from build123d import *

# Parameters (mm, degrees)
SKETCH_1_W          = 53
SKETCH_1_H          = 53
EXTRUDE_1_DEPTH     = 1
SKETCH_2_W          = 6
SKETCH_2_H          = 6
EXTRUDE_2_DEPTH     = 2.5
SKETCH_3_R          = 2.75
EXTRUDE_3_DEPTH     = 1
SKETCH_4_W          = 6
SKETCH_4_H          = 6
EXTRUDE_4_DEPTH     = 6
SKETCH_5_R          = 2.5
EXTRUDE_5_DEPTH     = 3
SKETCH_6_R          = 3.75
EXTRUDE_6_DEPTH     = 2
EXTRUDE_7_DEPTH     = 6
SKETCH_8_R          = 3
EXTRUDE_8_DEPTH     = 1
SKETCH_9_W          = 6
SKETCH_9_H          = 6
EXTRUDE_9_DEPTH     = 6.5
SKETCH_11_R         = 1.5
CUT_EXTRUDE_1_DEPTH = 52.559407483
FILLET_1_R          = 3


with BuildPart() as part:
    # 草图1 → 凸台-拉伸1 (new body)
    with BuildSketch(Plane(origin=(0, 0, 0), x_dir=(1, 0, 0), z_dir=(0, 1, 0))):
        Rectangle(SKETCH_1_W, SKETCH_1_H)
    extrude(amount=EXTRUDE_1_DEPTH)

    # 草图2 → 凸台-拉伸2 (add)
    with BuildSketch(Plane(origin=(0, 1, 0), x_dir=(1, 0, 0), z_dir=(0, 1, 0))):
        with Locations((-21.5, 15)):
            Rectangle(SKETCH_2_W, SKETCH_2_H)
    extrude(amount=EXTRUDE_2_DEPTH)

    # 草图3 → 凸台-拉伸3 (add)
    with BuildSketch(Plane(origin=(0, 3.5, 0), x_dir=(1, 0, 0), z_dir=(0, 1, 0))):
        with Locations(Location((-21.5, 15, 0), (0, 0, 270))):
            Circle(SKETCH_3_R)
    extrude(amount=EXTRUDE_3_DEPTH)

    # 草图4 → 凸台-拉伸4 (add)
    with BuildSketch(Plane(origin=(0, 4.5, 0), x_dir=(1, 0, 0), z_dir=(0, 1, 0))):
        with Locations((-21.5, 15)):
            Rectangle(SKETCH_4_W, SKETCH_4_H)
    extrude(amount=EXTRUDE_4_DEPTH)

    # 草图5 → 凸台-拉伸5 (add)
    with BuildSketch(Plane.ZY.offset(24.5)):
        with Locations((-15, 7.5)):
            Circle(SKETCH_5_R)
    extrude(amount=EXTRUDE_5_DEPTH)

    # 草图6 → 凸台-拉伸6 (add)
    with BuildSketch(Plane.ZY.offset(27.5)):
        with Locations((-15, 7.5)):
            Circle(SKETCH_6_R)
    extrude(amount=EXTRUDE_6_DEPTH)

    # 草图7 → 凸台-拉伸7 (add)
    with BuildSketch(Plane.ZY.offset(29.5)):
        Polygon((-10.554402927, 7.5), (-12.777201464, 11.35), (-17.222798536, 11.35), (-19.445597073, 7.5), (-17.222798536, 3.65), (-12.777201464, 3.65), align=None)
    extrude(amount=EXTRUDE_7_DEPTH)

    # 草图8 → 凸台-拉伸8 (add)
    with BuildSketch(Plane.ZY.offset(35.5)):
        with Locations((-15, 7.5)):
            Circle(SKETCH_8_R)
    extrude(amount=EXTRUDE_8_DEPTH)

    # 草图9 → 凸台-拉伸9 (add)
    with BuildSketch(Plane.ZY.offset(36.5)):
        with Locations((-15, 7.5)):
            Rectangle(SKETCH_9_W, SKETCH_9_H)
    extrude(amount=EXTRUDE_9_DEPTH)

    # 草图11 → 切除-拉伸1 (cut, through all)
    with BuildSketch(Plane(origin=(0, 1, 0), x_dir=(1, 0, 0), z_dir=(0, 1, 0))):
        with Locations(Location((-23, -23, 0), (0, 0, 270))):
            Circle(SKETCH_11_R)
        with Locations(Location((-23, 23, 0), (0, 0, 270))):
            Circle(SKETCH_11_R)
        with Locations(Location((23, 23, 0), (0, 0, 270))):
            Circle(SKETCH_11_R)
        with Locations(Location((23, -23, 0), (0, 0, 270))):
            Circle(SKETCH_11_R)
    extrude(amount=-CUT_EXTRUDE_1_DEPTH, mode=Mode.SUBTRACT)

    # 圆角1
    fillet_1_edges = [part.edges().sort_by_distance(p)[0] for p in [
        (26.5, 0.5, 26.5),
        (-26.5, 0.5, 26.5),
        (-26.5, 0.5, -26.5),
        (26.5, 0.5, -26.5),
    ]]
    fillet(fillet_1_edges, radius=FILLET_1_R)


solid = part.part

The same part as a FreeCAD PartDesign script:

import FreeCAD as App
import Part
import Sketcher
from FreeCAD import Vector
Q = App.Units.Quantity


def edges_at(feature, points):
    """Names of the edges that pass closest to the given points."""
    edges = feature.Shape.Edges
    near = lambda p: min(range(len(edges)), key=lambda i: edges[i].distToShape(Part.Vertex(*p))[0])
    return sorted({f"Edge{near(p) + 1}" for p in points})


def add_polygon(sketch, points):
    """Adds a closed chain of lines whose ends are joined by coincident constraints."""
    first, n = sketch.GeometryCount, len(points)
    for a, b in zip(points, points[1:] + points[:1]):
        sketch.addGeometry(Part.LineSegment(App.Vector(*a, 0), App.Vector(*b, 0)), False)
    for i in range(n):
        sketch.addConstraint(Sketcher.Constraint("Coincident", first + i, 2, first + (i + 1) % n, 1))

doc = App.newDocument("Part")
params = doc.addObject("Spreadsheet::Sheet", "Params")
for row, (alias, value) in enumerate([
    ("sketch1_width", "53 mm"),
    ("pad1_length", "1 mm"),
    ("sketch2_width", "6 mm"),
    ("pad2_length", "2.5 mm"),
    ("sketch3_diameter", "5.5 mm"),
    ("pad3_length", "1 mm"),
    ("sketch4_width", "6 mm"),
    ("pad4_length", "6 mm"),
    ("sketch5_diameter", "5 mm"),
    ("pad5_length", "3 mm"),
    ("sketch6_diameter", "7.5 mm"),
    ("pad6_length", "2 mm"),
    ("pad7_length", "6 mm"),
    ("sketch8_diameter", "6 mm"),
    ("pad8_length", "1 mm"),
    ("sketch9_width", "6 mm"),
    ("pad9_length", "6.5 mm"),
    ("sketch10_diameter", "3 mm"),
    ("fillet_radius", "3 mm"),
], start=1):
    params.set(f"A{row}", alias)
    params.set(f"B{row}", "=" + value)
    params.setAlias(f"B{row}", alias)

body = doc.addObject("PartDesign::Body", "Body")

# Sketch on XZ plane
sketch1 = body.newObject("Sketcher::SketchObject", "Sketch")
sketch1.AttachmentSupport = (doc.getObject("XZ_Plane"), [""])
sketch1.MapMode = "FlatFace"
add_polygon(sketch1, [(-26.5, -26.5), (-26.5, 26.5), (26.5, 26.5), (26.5, -26.5)])  # lines 0-3
sketch1.addConstraint([
    Sketcher.Constraint("Vertical", 0),
    Sketcher.Constraint("Horizontal", 1),
    Sketcher.Constraint("Vertical", 2),
    Sketcher.Constraint("Horizontal", 3),
    Sketcher.Constraint("Symmetric", 0, 2, 2, 2, -1, 1),
    Sketcher.Constraint("Equal", 3, 0),
    Sketcher.Constraint("DistanceX", 1, 1, 1, 2, Q("53 mm")),
])
sketch1.setExpression("Constraints[10]", "Params.sketch1_width")
pad1 = body.newObject("PartDesign::Pad", "Pad")
pad1.Profile = sketch1
pad1.setExpression("Length", "Params.pad1_length")
pad1.Reversed = True

# Sketch on XZ plane
sketch2 = body.newObject("Sketcher::SketchObject", "Sketch001")
sketch2.AttachmentSupport = (doc.getObject("XZ_Plane"), [""])
sketch2.MapMode = "FlatFace"
sketch2.AttachmentOffset = App.Placement(Vector(0, 0, -1), App.Rotation())
add_polygon(sketch2, [(-24.5, -18), (-24.5, -12), (-18.5, -12), (-18.5, -18)])  # lines 0-3
sketch2.addConstraint([
    Sketcher.Constraint("Vertical", 0),
    Sketcher.Constraint("Horizontal", 1),
    Sketcher.Constraint("Vertical", 2),
    Sketcher.Constraint("Horizontal", 3),
    Sketcher.Constraint("Equal", 3, 0),
    Sketcher.Constraint("DistanceX", 1, 1, 1, 2, Q("6 mm")),
    Sketcher.Constraint("DistanceY", 0, 2, -1, 1, Q("12 mm")),
    Sketcher.Constraint("DistanceX", 0, 2, -1, 1, Q("24.5 mm")),
])
sketch2.setExpression("Constraints[9]", "Params.sketch2_width")
pad2 = body.newObject("PartDesign::Pad", "Pad001")
pad2.Profile = sketch2
pad2.setExpression("Length", "Params.pad2_length")
pad2.Reversed = True

# Sketch on XZ plane
sketch3 = body.newObject("Sketcher::SketchObject", "Sketch002")
sketch3.AttachmentSupport = (doc.getObject("XZ_Plane"), [""])
sketch3.MapMode = "FlatFace"
sketch3.AttachmentOffset = App.Placement(Vector(0, 0, -3.5), App.Rotation())
sketch3.addGeometry(Part.Circle(Vector(-21.5, -15, 0), Vector(0, 0, 1), 2.75), False)
sketch3.addConstraint([
    Sketcher.Constraint("Diameter", 0, Q("5.5 mm")),
    Sketcher.Constraint("DistanceY", 0, 3, -1, 1, Q("15 mm")),
    Sketcher.Constraint("DistanceX", 0, 3, -1, 1, Q("21.5 mm")),
])
sketch3.setExpression("Constraints[0]", "Params.sketch3_diameter")
pad3 = body.newObject("PartDesign::Pad", "Pad002")
pad3.Profile = sketch3
pad3.setExpression("Length", "Params.pad3_length")
pad3.Reversed = True

# Sketch on XZ plane
sketch4 = body.newObject("Sketcher::SketchObject", "Sketch003")
sketch4.AttachmentSupport = (doc.getObject("XZ_Plane"), [""])
sketch4.MapMode = "FlatFace"
sketch4.AttachmentOffset = App.Placement(Vector(0, 0, -4.5), App.Rotation())
add_polygon(sketch4, [(-24.5, -18), (-24.5, -12), (-18.5, -12), (-18.5, -18)])  # lines 0-3
sketch4.addConstraint([
    Sketcher.Constraint("Vertical", 0),
    Sketcher.Constraint("Horizontal", 1),
    Sketcher.Constraint("Vertical", 2),
    Sketcher.Constraint("Horizontal", 3),
    Sketcher.Constraint("Equal", 3, 0),
    Sketcher.Constraint("DistanceX", 1, 1, 1, 2, Q("6 mm")),
    Sketcher.Constraint("DistanceY", 0, 2, -1, 1, Q("12 mm")),
    Sketcher.Constraint("DistanceX", 0, 2, -1, 1, Q("24.5 mm")),
])
sketch4.setExpression("Constraints[9]", "Params.sketch4_width")
pad4 = body.newObject("PartDesign::Pad", "Pad003")
pad4.Profile = sketch4
pad4.setExpression("Length", "Params.pad4_length")
pad4.Reversed = True

# Sketch on YZ plane
sketch5 = body.newObject("Sketcher::SketchObject", "Sketch004")
sketch5.AttachmentSupport = (doc.getObject("YZ_Plane"), [""])
sketch5.MapMode = "FlatFace"
sketch5.AttachmentOffset = App.Placement(Vector(0, 0, -24.5), App.Rotation())
sketch5.addGeometry(Part.Circle(Vector(7.5, -15, 0), Vector(0, 0, 1), 2.5), False)
sketch5.addConstraint([
    Sketcher.Constraint("Diameter", 0, Q("5 mm")),
    Sketcher.Constraint("DistanceY", 0, 3, -1, 1, Q("15 mm")),
    Sketcher.Constraint("DistanceX", -1, 1, 0, 3, Q("7.5 mm")),
])
sketch5.setExpression("Constraints[0]", "Params.sketch5_diameter")
pad5 = body.newObject("PartDesign::Pad", "Pad004")
pad5.Profile = sketch5
pad5.setExpression("Length", "Params.pad5_length")
pad5.Reversed = True

# Sketch on YZ plane
sketch6 = body.newObject("Sketcher::SketchObject", "Sketch005")
sketch6.AttachmentSupport = (doc.getObject("YZ_Plane"), [""])
sketch6.MapMode = "FlatFace"
sketch6.AttachmentOffset = App.Placement(Vector(0, 0, -27.5), App.Rotation())
sketch6.addGeometry(Part.Circle(Vector(7.5, -15, 0), Vector(0, 0, 1), 3.75), False)
sketch6.addConstraint([
    Sketcher.Constraint("Diameter", 0, Q("7.5 mm")),
    Sketcher.Constraint("DistanceY", 0, 3, -1, 1, Q("15 mm")),
    Sketcher.Constraint("DistanceX", -1, 1, 0, 3, Q("7.5 mm")),
])
sketch6.setExpression("Constraints[0]", "Params.sketch6_diameter")
pad6 = body.newObject("PartDesign::Pad", "Pad005")
pad6.Profile = sketch6
pad6.setExpression("Length", "Params.pad6_length")
pad6.Reversed = True

# Sketch on YZ plane
sketch7 = body.newObject("Sketcher::SketchObject", "Sketch006")
sketch7.AttachmentSupport = (doc.getObject("YZ_Plane"), [""])
sketch7.MapMode = "FlatFace"
sketch7.AttachmentOffset = App.Placement(Vector(0, 0, -29.5), App.Rotation())
add_polygon(sketch7, [(7.5, -10.554403), (11.35, -12.777201), (11.35, -17.222799), (7.5, -19.445597), (3.65, -17.222799), (3.65, -12.777201)])  # lines 0-5
sketch7.addConstraint([
    Sketcher.Constraint("Vertical", 1),
    Sketcher.Constraint("Vertical", 4),
    Sketcher.Constraint("Parallel", 0, 3),
    Sketcher.Constraint("Parallel", 2, 5),
    Sketcher.Constraint("Horizontal", 1, 2, 3, 2),
    Sketcher.Constraint("Horizontal", 0, 2, 4, 2),
    Sketcher.Constraint("Vertical", 2, 2, 5, 2),
    Sketcher.Constraint("Angle", 0, Q("-30 deg")),
    Sketcher.Constraint("DistanceX", -1, 1, 2, 2, Q("7.5 mm")),
    Sketcher.Constraint("DistanceX", 3, 2, 1, 2, Q("7.7 mm")),
    Sketcher.Constraint("DistanceY", 0, 2, -1, 1, Q("12.777201 mm")),
    Sketcher.Constraint("DistanceY", 1, 2, -1, 1, Q("17.222799 mm")),
])
pad7 = body.newObject("PartDesign::Pad", "Pad006")
pad7.Profile = sketch7
pad7.setExpression("Length", "Params.pad7_length")
pad7.Reversed = True

# Sketch on YZ plane
sketch8 = body.newObject("Sketcher::SketchObject", "Sketch007")
sketch8.AttachmentSupport = (doc.getObject("YZ_Plane"), [""])
sketch8.MapMode = "FlatFace"
sketch8.AttachmentOffset = App.Placement(Vector(0, 0, -35.5), App.Rotation())
sketch8.addGeometry(Part.Circle(Vector(7.5, -15, 0), Vector(0, 0, 1), 3), False)
sketch8.addConstraint([
    Sketcher.Constraint("Diameter", 0, Q("6 mm")),
    Sketcher.Constraint("DistanceY", 0, 3, -1, 1, Q("15 mm")),
    Sketcher.Constraint("DistanceX", -1, 1, 0, 3, Q("7.5 mm")),
])
sketch8.setExpression("Constraints[0]", "Params.sketch8_diameter")
pad8 = body.newObject("PartDesign::Pad", "Pad007")
pad8.Profile = sketch8
pad8.setExpression("Length", "Params.pad8_length")
pad8.Reversed = True

# Sketch on YZ plane
sketch9 = body.newObject("Sketcher::SketchObject", "Sketch008")
sketch9.AttachmentSupport = (doc.getObject("YZ_Plane"), [""])
sketch9.MapMode = "FlatFace"
sketch9.AttachmentOffset = App.Placement(Vector(0, 0, -36.5), App.Rotation())
add_polygon(sketch9, [(10.5, -18), (4.5, -18), (4.5, -12), (10.5, -12)])  # lines 0-3
sketch9.addConstraint([
    Sketcher.Constraint("Horizontal", 0),
    Sketcher.Constraint("Vertical", 1),
    Sketcher.Constraint("Horizontal", 2),
    Sketcher.Constraint("Vertical", 3),
    Sketcher.Constraint("Equal", 2, 1),
    Sketcher.Constraint("DistanceX", 0, 2, 0, 1, Q("6 mm")),
    Sketcher.Constraint("DistanceY", 0, 2, -1, 1, Q("18 mm")),
    Sketcher.Constraint("DistanceX", -1, 1, 0, 2, Q("4.5 mm")),
])
sketch9.setExpression("Constraints[9]", "Params.sketch9_width")
pad9 = body.newObject("PartDesign::Pad", "Pad008")
pad9.Profile = sketch9
pad9.setExpression("Length", "Params.pad9_length")
pad9.Reversed = True

# Sketch on XZ plane
sketch10 = body.newObject("Sketcher::SketchObject", "Sketch009")
sketch10.AttachmentSupport = (doc.getObject("XZ_Plane"), [""])
sketch10.MapMode = "FlatFace"
sketch10.AttachmentOffset = App.Placement(Vector(0, 0, -1), App.Rotation())
sketch10.addGeometry([
    Part.Circle(Vector(-23, 23, 0), Vector(0, 0, 1), 1.5),
    Part.Circle(Vector(-23, -23, 0), Vector(0, 0, 1), 1.5),
    Part.Circle(Vector(23, -23, 0), Vector(0, 0, 1), 1.5),
    Part.Circle(Vector(23, 23, 0), Vector(0, 0, 1), 1.5),
], False)
sketch10.addConstraint([
    Sketcher.Constraint("Equal", 0, 1),
    Sketcher.Constraint("Equal", 1, 2),
    Sketcher.Constraint("Equal", 2, 3),
    Sketcher.Constraint("Symmetric", 0, 3, 2, 3, -1, 1),
    Sketcher.Constraint("Symmetric", 1, 3, 3, 3, -1, 1),
    Sketcher.Constraint("Symmetric", 1, 3, 2, 3, -2),
    Sketcher.Constraint("Diameter", 0, Q("3 mm")),
    Sketcher.Constraint("DistanceX", 0, 3, -1, 1, Q("23 mm")),
    Sketcher.Constraint("DistanceY", -1, 1, 0, 3, Q("23 mm")),
])
sketch10.setExpression("Constraints[6]", "Params.sketch10_diameter")
pocket1 = body.newObject("PartDesign::Pocket", "Pocket")
pocket1.Profile = sketch10
pocket1.Type = "ThroughAll"
pocket1.Reversed = True
doc.recompute()

fillet = body.newObject("PartDesign::Fillet", "Fillet")
fillet.Base = (pocket1, edges_at(pocket1, [
    (26.5, 0.5, 26.5),
    (-26.5, 0.5, 26.5),
    (-26.5, 0.5, -26.5),
    (26.5, 0.5, -26.5),
]))
fillet.setExpression("Radius", "Params.fillet_radius")

doc.recompute()
